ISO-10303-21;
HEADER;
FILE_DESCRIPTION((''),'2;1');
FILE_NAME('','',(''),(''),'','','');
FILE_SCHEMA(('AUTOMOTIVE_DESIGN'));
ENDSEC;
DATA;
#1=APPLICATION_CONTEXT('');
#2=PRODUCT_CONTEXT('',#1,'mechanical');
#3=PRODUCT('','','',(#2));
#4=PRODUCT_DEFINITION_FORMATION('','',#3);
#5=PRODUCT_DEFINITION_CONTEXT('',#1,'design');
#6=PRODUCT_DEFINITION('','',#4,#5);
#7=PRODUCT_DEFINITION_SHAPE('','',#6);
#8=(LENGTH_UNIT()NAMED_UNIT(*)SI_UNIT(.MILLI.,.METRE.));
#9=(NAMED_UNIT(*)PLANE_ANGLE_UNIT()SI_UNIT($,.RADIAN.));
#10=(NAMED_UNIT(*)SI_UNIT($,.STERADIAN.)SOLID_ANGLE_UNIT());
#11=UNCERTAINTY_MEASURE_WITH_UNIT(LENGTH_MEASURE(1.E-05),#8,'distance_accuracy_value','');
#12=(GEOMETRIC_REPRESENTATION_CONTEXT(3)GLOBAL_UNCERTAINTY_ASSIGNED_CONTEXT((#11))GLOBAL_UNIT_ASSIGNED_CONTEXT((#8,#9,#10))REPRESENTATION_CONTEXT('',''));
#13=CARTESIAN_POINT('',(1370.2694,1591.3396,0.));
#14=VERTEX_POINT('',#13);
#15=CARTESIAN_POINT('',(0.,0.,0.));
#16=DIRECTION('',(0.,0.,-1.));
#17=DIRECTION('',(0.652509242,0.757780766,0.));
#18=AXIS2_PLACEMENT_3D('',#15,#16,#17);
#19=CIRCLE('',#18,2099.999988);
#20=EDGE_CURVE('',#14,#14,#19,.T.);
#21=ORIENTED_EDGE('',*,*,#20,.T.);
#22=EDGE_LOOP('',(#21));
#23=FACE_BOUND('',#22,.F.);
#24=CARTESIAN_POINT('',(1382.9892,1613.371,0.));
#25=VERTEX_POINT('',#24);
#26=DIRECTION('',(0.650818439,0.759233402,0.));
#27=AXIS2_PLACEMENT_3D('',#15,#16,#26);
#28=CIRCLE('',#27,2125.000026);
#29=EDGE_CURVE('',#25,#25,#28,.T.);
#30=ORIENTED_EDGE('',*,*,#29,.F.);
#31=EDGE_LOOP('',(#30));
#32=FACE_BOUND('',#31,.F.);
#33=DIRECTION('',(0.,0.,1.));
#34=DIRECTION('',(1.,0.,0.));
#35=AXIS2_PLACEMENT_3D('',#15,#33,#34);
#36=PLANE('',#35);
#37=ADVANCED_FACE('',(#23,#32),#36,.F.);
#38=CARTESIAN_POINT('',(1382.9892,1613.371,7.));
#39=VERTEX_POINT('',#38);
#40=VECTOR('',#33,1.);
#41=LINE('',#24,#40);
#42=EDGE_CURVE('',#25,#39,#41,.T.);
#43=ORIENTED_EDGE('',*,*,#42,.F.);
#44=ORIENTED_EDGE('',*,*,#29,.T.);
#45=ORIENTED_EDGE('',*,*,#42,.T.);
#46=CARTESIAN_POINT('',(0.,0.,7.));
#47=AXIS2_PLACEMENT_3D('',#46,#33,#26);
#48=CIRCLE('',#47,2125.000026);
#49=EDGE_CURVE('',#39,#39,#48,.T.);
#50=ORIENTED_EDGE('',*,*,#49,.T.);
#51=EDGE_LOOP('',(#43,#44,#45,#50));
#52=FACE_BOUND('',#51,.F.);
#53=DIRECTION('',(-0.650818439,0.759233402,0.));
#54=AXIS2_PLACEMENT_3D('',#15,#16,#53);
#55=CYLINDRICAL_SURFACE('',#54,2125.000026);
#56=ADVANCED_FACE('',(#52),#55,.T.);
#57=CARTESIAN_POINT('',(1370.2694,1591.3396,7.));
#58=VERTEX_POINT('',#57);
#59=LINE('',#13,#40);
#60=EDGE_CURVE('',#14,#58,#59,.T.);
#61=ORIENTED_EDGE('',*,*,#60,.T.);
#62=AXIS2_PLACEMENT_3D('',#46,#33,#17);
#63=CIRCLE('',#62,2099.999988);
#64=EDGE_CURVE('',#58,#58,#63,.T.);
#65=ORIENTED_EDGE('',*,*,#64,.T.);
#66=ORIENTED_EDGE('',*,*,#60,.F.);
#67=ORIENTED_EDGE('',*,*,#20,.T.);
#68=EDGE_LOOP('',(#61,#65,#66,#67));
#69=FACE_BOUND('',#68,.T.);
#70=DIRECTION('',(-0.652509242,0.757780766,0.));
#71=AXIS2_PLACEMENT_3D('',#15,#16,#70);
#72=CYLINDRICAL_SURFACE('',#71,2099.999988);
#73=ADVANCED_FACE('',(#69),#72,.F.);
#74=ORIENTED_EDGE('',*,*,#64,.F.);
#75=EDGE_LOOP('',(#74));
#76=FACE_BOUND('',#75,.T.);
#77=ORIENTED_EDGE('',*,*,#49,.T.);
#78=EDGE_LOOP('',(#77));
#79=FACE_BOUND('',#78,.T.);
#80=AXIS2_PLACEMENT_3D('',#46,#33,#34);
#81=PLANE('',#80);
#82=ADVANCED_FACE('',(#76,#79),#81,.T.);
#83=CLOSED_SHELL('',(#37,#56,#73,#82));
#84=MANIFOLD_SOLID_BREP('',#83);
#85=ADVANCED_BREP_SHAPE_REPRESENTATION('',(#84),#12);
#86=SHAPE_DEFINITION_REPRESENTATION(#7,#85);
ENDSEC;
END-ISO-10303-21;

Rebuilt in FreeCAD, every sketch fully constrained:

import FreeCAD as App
import Part
import Sketcher

V = App.Vector
Q = App.Units.Quantity

doc = App.newDocument("Part")
body = doc.addObject("PartDesign::Body", "Body")

sketch1 = body.newObject("Sketcher::SketchObject", "Sketch")
sketch1.AttachmentSupport = (doc.getObject("XY_Plane"), [""])
sketch1.MapMode = "FlatFace"
sketch1.addGeometry([
    Part.Circle(V(0, 0, 0), V(0, 0, 1), 2125),
    Part.Circle(V(0, 0, 0), V(0, 0, 1), 2100),
], False)
sketch1.addConstraint([
    Sketcher.Constraint("Coincident", 0, 3, -1, 1),
    Sketcher.Constraint("Coincident", 1, 3, -1, 1),
    Sketcher.Constraint("Diameter", 0, Q("4250 mm")),
    Sketcher.Constraint("Diameter", 1, Q("4200 mm")),
])
pad1 = body.newObject("PartDesign::Pad", "Pad")
pad1.Profile = sketch1
pad1.Length = 7

doc.recompute()
